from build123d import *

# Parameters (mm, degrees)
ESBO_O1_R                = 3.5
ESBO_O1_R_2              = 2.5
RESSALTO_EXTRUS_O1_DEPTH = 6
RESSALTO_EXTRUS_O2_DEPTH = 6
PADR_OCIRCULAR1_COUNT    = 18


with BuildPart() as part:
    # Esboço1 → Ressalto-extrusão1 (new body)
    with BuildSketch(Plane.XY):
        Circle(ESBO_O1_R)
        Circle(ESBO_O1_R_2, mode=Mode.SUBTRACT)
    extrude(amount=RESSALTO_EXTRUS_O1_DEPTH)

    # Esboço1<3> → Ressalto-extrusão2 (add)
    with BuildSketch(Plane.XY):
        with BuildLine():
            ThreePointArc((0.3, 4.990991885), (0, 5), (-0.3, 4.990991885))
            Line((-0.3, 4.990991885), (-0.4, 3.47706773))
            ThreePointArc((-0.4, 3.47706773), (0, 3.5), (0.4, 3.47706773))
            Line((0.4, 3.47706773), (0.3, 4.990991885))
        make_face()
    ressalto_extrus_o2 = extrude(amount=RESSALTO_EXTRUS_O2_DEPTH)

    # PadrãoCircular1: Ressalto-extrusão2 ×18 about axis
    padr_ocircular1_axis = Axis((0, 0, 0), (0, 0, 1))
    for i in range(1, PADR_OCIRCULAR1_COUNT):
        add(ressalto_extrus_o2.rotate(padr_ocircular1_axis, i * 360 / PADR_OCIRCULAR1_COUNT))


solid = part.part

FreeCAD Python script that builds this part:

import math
import FreeCAD as App
import Part
import Sketcher
from FreeCAD import Vector
Q = App.Units.Quantity

doc = App.newDocument("Part")
body = doc.addObject("PartDesign::Body", "Body")

# Sketch on XY plane
sketch1 = doc.addObject("Sketcher::SketchObject", "Sketch")
body.addObject(sketch1)
sketch1.AttachmentSupport = (doc.XY_Plane, [""])
sketch1.MapMode = "FlatFace"
sketch1.addGeometry(Part.Circle(Vector(0, 0, 0), Vector(0, 0, 1), 3.5), False)
sketch1.addGeometry(Part.Circle(Vector(0, 0, 0), Vector(0, 0, 1), 2.5), False)
sketch1.addConstraint(Sketcher.Constraint("Coincident", 0, 3, -1, 1))
sketch1.addConstraint(Sketcher.Constraint("Coincident", 1, 3, -1, 1))
sketch1.addConstraint(Sketcher.Constraint("Diameter", 0, Q("7 mm")))
sketch1.addConstraint(Sketcher.Constraint("Diameter", 1, Q("5 mm")))
pad1 = doc.addObject("PartDesign::Pad", "Pad")
body.addObject(pad1)
pad1.Profile = sketch1
pad1.Length = 6

# Sketch on XY plane
sketch2 = doc.addObject("Sketcher::SketchObject", "Sketch001")
body.addObject(sketch2)
sketch2.AttachmentSupport = (doc.XY_Plane, [""])
sketch2.MapMode = "FlatFace"
sketch2.addGeometry(Part.ArcOfCircle(Part.Circle(Vector(0, 0, 0), Vector(0, 0, 1), 5), math.radians(86.56), math.radians(93.44)), False)
sketch2.addGeometry(Part.LineSegment(Vector(-0.3, 5, 0), Vector(-0.4, 3.5, 0)), False)
sketch2.addGeometry(Part.ArcOfCircle(Part.Circle(Vector(0, 0, 0), Vector(0, 0, 1), 3.5), math.radians(83.44), math.radians(96.56)), False)
sketch2.addGeometry(Part.LineSegment(Vector(0.4, 3.5, 0), Vector(0.3, 5, 0)), False)
sketch2.addConstraint(Sketcher.Constraint("Coincident", 0, 2, 1, 1))
sketch2.addConstraint(Sketcher.Constraint("Coincident", 1, 2, 2, 2))
sketch2.addConstraint(Sketcher.Constraint("Coincident", 2, 1, 3, 1))
sketch2.addConstraint(Sketcher.Constraint("Coincident", 3, 2, 0, 1))
sketch2.addConstraint(Sketcher.Constraint("Coincident", 0, 3, -1, 1))
sketch2.addConstraint(Sketcher.Constraint("Coincident", 2, 3, -1, 1))
sketch2.addConstraint(Sketcher.Constraint("Horizontal", 1, 2, 2, 1))
sketch2.addConstraint(Sketcher.Constraint("Horizontal", 0, 2, 3, 2))
sketch2.addConstraint(Sketcher.Constraint("Radius", 0, Q("5 mm")))
sketch2.addConstraint(Sketcher.Constraint("Radius", 2, Q("3.5 mm")))
sketch2.addConstraint(Sketcher.Constraint("DistanceX", 0, 2, -1, 1, Q("0.3 mm")))
sketch2.addConstraint(Sketcher.Constraint("DistanceX", 1, 2, -1, 1, Q("0.4 mm")))
pad2 = doc.addObject("PartDesign::Pad", "Pad001")
body.addObject(pad2)
pad2.Profile = sketch2
pad2.Length = 6
doc.recompute()

polarpattern = doc.addObject("PartDesign::PolarPattern", "PolarPattern")
body.addObject(polarpattern)
polarpattern.Originals = [pad2]
polarpattern.Axis = (doc.Z_Axis, [""])
polarpattern.Angle = 360
polarpattern.Occurrences = 18
body.Tip = polarpattern

doc.recompute()
